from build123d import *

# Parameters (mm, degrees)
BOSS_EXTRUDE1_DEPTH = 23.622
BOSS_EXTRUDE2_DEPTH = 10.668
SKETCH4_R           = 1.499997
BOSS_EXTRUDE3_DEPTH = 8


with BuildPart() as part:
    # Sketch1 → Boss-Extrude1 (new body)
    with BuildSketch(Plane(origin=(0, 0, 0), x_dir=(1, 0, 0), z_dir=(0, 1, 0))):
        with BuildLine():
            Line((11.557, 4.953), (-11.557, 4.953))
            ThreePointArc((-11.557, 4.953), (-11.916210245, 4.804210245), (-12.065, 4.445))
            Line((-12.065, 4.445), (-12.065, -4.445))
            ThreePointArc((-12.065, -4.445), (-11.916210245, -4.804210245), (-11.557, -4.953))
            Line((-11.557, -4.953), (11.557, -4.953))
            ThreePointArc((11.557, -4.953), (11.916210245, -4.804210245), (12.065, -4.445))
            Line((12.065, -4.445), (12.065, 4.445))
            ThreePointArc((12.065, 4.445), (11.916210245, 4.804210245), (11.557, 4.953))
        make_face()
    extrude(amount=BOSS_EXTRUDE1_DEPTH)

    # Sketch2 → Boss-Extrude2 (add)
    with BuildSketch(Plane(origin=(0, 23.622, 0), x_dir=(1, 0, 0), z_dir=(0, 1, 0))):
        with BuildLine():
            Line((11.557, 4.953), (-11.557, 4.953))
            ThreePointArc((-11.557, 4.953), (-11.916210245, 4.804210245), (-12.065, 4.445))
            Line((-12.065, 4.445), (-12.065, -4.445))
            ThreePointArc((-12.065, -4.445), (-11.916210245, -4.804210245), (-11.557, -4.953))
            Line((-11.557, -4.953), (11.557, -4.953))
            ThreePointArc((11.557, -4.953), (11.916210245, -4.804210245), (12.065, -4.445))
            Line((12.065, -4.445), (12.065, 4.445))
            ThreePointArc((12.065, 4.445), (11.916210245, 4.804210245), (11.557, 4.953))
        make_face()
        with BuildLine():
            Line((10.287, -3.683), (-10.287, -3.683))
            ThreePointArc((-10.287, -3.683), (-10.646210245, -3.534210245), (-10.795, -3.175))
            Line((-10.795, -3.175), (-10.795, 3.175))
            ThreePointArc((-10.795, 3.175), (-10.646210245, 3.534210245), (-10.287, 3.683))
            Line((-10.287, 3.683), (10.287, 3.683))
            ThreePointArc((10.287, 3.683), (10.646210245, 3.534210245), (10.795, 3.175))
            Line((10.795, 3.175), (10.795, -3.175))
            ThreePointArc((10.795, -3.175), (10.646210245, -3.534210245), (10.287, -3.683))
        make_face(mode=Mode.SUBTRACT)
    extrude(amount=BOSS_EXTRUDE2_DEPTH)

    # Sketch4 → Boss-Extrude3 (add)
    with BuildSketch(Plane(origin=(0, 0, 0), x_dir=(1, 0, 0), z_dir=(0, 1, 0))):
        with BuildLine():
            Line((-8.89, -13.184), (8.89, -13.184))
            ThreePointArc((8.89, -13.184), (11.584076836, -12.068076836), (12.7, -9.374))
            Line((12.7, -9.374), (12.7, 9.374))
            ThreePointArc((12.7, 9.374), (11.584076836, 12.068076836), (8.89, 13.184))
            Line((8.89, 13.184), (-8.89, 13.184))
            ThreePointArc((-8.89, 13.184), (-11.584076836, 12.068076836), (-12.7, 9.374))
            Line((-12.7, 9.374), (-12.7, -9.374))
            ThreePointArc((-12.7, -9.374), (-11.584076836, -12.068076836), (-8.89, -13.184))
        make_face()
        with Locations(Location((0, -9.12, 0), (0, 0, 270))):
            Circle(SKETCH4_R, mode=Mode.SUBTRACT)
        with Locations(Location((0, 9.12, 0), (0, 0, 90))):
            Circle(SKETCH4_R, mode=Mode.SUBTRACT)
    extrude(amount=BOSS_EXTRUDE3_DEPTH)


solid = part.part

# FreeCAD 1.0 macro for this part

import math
import FreeCAD as App
import Part
import Sketcher

V = App.Vector
Q = App.Units.Quantity

doc = App.newDocument("Part")
body = doc.addObject("PartDesign::Body", "Body")

# Sketch on XZ plane
sketch1 = body.newObject("Sketcher::SketchObject", "Sketch")
sketch1.AttachmentSupport = (doc.getObject("XZ_Plane"), [""])
sketch1.MapMode = "FlatFace"
sketch1.addGeometry([
    Part.LineSegment(V(11.6, -5, 0), V(-11.6, -5, 0)),  # 0
    Part.ArcOfCircle(Part.Circle(V(-11.6, -4.4, 0), V(0, 0, 1), 0.5), math.radians(180), math.radians(270)),  # 1
    Part.LineSegment(V(-12.1, -4.4, 0), V(-12.1, 4.4, 0)),  # 2
    Part.ArcOfCircle(Part.Circle(V(-11.6, 4.4, 0), V(0, 0, 1), 0.5), math.radians(90), math.radians(180)),  # 3
    Part.LineSegment(V(-11.6, 5, 0), V(11.6, 5, 0)),  # 4
    Part.ArcOfCircle(Part.Circle(V(11.6, 4.4, 0), V(0, 0, 1), 0.5), math.radians(0), math.radians(90)),  # 5
    Part.LineSegment(V(12.1, 4.4, 0), V(12.1, -4.4, 0)),  # 6
    Part.ArcOfCircle(Part.Circle(V(11.6, -4.4, 0), V(0, 0, 1), 0.5), math.radians(-90), math.radians(0)),  # 7
], False)
sketch1.addConstraint([
    Sketcher.Constraint("Tangent", 0, 2, 1, 2),
    Sketcher.Constraint("Tangent", 1, 1, 2, 1),
    Sketcher.Constraint("Tangent", 2, 2, 3, 2),
    Sketcher.Constraint("Tangent", 3, 1, 4, 1),
    Sketcher.Constraint("Tangent", 4, 2, 5, 2),
    Sketcher.Constraint("Tangent", 5, 1, 6, 1),
    Sketcher.Constraint("Tangent", 6, 2, 7, 2),
    Sketcher.Constraint("Tangent", 7, 1, 0, 1),
    Sketcher.Constraint("Horizontal", 0),
    Sketcher.Constraint("Vertical", 2),
    Sketcher.Constraint("Horizontal", 4),
    Sketcher.Constraint("Vertical", 6),
    Sketcher.Constraint("Equal", 1, 3),
    Sketcher.Constraint("Equal", 3, 5),
    Sketcher.Constraint("Equal", 5, 7),
    Sketcher.Constraint("Symmetric", 1, 3, 5, 3, -1, 1),
    Sketcher.Constraint("Radius", 1, Q("0.02 in")),
    Sketcher.Constraint("DistanceX", 0, 2, 0, 1, Q("0.91 in")),
    Sketcher.Constraint("DistanceY", 2, 1, 2, 2, Q("0.35 in")),
])
pad1 = body.newObject("PartDesign::Pad", "Pad")
pad1.Profile = sketch1
pad1.Length = Q("0.93 in")
pad1.Reversed = True

# Sketch on XZ plane
sketch2 = body.newObject("Sketcher::SketchObject", "Sketch001")
sketch2.AttachmentSupport = (doc.getObject("XZ_Plane"), [""])
sketch2.MapMode = "FlatFace"
sketch2.AttachmentOffset = App.Placement(V(0, 0, -0.93 * 25.4), App.Rotation())
sketch2.addGeometry([
    Part.LineSegment(V(11.6, -5, 0), V(-11.6, -5, 0)),  # 0
    Part.ArcOfCircle(Part.Circle(V(-11.6, -4.4, 0), V(0, 0, 1), 0.5), math.radians(180), math.radians(270)),  # 1
    Part.LineSegment(V(-12.1, -4.4, 0), V(-12.1, 4.4, 0)),  # 2
    Part.ArcOfCircle(Part.Circle(V(-11.6, 4.4, 0), V(0, 0, 1), 0.5), math.radians(90), math.radians(180)),  # 3
    Part.LineSegment(V(-11.6, 5, 0), V(11.6, 5, 0)),  # 4
    Part.ArcOfCircle(Part.Circle(V(11.6, 4.4, 0), V(0, 0, 1), 0.5), math.radians(0), math.radians(90)),  # 5
    Part.LineSegment(V(12.1, 4.4, 0), V(12.1, -4.4, 0)),  # 6
    Part.ArcOfCircle(Part.Circle(V(11.6, -4.4, 0), V(0, 0, 1), 0.5), math.radians(-90), math.radians(0)),  # 7
    Part.ArcOfCircle(Part.Circle(V(10.3, 3.2, 0), V(0, 0, 1), 0.5), math.radians(0), math.radians(90)),  # 8
    Part.LineSegment(V(10.3, 3.7, 0), V(-10.3, 3.7, 0)),  # 9
    Part.ArcOfCircle(Part.Circle(V(-10.3, 3.2, 0), V(0, 0, 1), 0.5), math.radians(90), math.radians(180)),  # 10
    Part.LineSegment(V(-10.8, 3.2, 0), V(-10.8, -3.2, 0)),  # 11
    Part.ArcOfCircle(Part.Circle(V(-10.3, -3.2, 0), V(0, 0, 1), 0.5), math.radians(180), math.radians(270)),  # 12
    Part.LineSegment(V(-10.3, -3.7, 0), V(10.3, -3.7, 0)),  # 13
    Part.ArcOfCircle(Part.Circle(V(10.3, -3.2, 0), V(0, 0, 1), 0.5), math.radians(-90), math.radians(0)),  # 14
    Part.LineSegment(V(10.8, -3.2, 0), V(10.8, 3.2, 0)),  # 15
], False)
sketch2.addConstraint([
    Sketcher.Constraint("Tangent", 0, 2, 1, 2),
    Sketcher.Constraint("Tangent", 1, 1, 2, 1),
    Sketcher.Constraint("Tangent", 2, 2, 3, 2),
    Sketcher.Constraint("Tangent", 3, 1, 4, 1),
    Sketcher.Constraint("Tangent", 4, 2, 5, 2),
    Sketcher.Constraint("Tangent", 5, 1, 6, 1),
    Sketcher.Constraint("Tangent", 6, 2, 7, 2),
    Sketcher.Constraint("Tangent", 7, 1, 0, 1),
    Sketcher.Constraint("Tangent", 8, 2, 9, 1),
    Sketcher.Constraint("Tangent", 9, 2, 10, 1),
    Sketcher.Constraint("Tangent", 10, 2, 11, 1),
    Sketcher.Constraint("Tangent", 11, 2, 12, 1),
    Sketcher.Constraint("Tangent", 12, 2, 13, 1),
    Sketcher.Constraint("Tangent", 13, 2, 14, 1),
    Sketcher.Constraint("Tangent", 14, 2, 15, 1),
    Sketcher.Constraint("Tangent", 15, 2, 8, 1),
    Sketcher.Constraint("Horizontal", 0),
    Sketcher.Constraint("Vertical", 2),
    Sketcher.Constraint("Horizontal", 4),
    Sketcher.Constraint("Vertical", 6),
    Sketcher.Constraint("Horizontal", 9),
    Sketcher.Constraint("Vertical", 11),
    Sketcher.Constraint("Horizontal", 13),
    Sketcher.Constraint("Vertical", 15),
    Sketcher.Constraint("Equal", 1, 3),
    Sketcher.Constraint("Equal", 3, 5),
    Sketcher.Constraint("Equal", 5, 7),
    Sketcher.Constraint("Equal", 7, 8),
    Sketcher.Constraint("Equal", 8, 10),
    Sketcher.Constraint("Equal", 10, 12),
    Sketcher.Constraint("Equal", 12, 14),
    Sketcher.Constraint("Symmetric", 1, 3, 5, 3, -1, 1),
    Sketcher.Constraint("Symmetric", 8, 3, 12, 3, -1, 1),
    Sketcher.Constraint("Radius", 1, Q("0.02 in")),
    Sketcher.Constraint("DistanceX", 0, 2, 0, 1, Q("0.91 in")),
    Sketcher.Constraint("DistanceX", 9, 2, 9, 1, Q("0.81 in")),
    Sketcher.Constraint("DistanceY", 2, 1, 2, 2, Q("0.35 in")),
    Sketcher.Constraint("DistanceY", 11, 2, 11, 1, Q("0.25 in")),
])
pad2 = body.newObject("PartDesign::Pad", "Pad001")
pad2.Profile = sketch2
pad2.Length = Q("0.42 in")
pad2.Reversed = True

# Sketch on XZ plane
sketch3 = body.newObject("Sketcher::SketchObject", "Sketch002")
sketch3.AttachmentSupport = (doc.getObject("XZ_Plane"), [""])
sketch3.MapMode = "FlatFace"
sketch3.addGeometry([
    Part.LineSegment(V(-8.9, 13.2, 0), V(8.9, 13.2, 0)),  # 0
    Part.ArcOfCircle(Part.Circle(V(8.9, 9.4, 0), V(0, 0, 1), 3.8), math.radians(0), math.radians(90)),  # 1
    Part.LineSegment(V(12.7, 9.4, 0), V(12.7, -9.4, 0)),  # 2
    Part.ArcOfCircle(Part.Circle(V(8.9, -9.4, 0), V(0, 0, 1), 3.8), math.radians(-90), math.radians(0)),  # 3
    Part.LineSegment(V(8.9, -13.2, 0), V(-8.9, -13.2, 0)),  # 4
    Part.ArcOfCircle(Part.Circle(V(-8.9, -9.4, 0), V(0, 0, 1), 3.8), math.radians(-180), math.radians(-90)),  # 5
    Part.LineSegment(V(-12.7, -9.4, 0), V(-12.7, 9.4, 0)),  # 6
    Part.ArcOfCircle(Part.Circle(V(-8.9, 9.4, 0), V(0, 0, 1), 3.8), math.radians(90), math.radians(180)),  # 7
    Part.Circle(V(0, 9.1, 0), V(0, 0, 1), 1.5),  # 8
    Part.Circle(V(0, -9.1, 0), V(0, 0, 1), 1.5),  # 9
], False)
sketch3.addConstraint([
    Sketcher.Constraint("Tangent", 0, 2, 1, 2),
    Sketcher.Constraint("Tangent", 1, 1, 2, 1),
    Sketcher.Constraint("Tangent", 2, 2, 3, 2),
    Sketcher.Constraint("Tangent", 3, 1, 4, 1),
    Sketcher.Constraint("Tangent", 4, 2, 5, 2),
    Sketcher.Constraint("Tangent", 5, 1, 6, 1),
    Sketcher.Constraint("Tangent", 6, 2, 7, 2),
    Sketcher.Constraint("Tangent", 7, 1, 0, 1),
    Sketcher.Constraint("Horizontal", 0),
    Sketcher.Constraint("Vertical", 2),
    Sketcher.Constraint("Horizontal", 4),
    Sketcher.Constraint("Vertical", 6),
    Sketcher.Constraint("Equal", 1, 3),
    Sketcher.Constraint("Equal", 3, 5),
    Sketcher.Constraint("Equal", 5, 7),
    Sketcher.Constraint("Equal", 8, 9),
    Sketcher.Constraint("Symmetric", 1, 3, 5, 3, -1, 1),
    Sketcher.Constraint("Symmetric", 8, 3, 9, 3, -1, 1),
    Sketcher.Constraint("PointOnObject", 8, 3, -2),
    Sketcher.Constraint("Radius", 1, Q("0.15 in")),
    Sketcher.Constraint("DistanceX", 0, 1, 0, 2, Q("0.7 in")),
    Sketcher.Constraint("DistanceY", 8, 3, 1, 3, Q("0.01 in")),
    Sketcher.Constraint("Diameter", 8, Q("2.999994 mm")),
    Sketcher.Constraint("DistanceY", 2, 2, 2, 1, Q("18.748 mm")),
])
pad3 = body.newObject("PartDesign::Pad", "Pad002")
pad3.Profile = sketch3
pad3.Length = 8
pad3.Reversed = True

doc.recompute()
